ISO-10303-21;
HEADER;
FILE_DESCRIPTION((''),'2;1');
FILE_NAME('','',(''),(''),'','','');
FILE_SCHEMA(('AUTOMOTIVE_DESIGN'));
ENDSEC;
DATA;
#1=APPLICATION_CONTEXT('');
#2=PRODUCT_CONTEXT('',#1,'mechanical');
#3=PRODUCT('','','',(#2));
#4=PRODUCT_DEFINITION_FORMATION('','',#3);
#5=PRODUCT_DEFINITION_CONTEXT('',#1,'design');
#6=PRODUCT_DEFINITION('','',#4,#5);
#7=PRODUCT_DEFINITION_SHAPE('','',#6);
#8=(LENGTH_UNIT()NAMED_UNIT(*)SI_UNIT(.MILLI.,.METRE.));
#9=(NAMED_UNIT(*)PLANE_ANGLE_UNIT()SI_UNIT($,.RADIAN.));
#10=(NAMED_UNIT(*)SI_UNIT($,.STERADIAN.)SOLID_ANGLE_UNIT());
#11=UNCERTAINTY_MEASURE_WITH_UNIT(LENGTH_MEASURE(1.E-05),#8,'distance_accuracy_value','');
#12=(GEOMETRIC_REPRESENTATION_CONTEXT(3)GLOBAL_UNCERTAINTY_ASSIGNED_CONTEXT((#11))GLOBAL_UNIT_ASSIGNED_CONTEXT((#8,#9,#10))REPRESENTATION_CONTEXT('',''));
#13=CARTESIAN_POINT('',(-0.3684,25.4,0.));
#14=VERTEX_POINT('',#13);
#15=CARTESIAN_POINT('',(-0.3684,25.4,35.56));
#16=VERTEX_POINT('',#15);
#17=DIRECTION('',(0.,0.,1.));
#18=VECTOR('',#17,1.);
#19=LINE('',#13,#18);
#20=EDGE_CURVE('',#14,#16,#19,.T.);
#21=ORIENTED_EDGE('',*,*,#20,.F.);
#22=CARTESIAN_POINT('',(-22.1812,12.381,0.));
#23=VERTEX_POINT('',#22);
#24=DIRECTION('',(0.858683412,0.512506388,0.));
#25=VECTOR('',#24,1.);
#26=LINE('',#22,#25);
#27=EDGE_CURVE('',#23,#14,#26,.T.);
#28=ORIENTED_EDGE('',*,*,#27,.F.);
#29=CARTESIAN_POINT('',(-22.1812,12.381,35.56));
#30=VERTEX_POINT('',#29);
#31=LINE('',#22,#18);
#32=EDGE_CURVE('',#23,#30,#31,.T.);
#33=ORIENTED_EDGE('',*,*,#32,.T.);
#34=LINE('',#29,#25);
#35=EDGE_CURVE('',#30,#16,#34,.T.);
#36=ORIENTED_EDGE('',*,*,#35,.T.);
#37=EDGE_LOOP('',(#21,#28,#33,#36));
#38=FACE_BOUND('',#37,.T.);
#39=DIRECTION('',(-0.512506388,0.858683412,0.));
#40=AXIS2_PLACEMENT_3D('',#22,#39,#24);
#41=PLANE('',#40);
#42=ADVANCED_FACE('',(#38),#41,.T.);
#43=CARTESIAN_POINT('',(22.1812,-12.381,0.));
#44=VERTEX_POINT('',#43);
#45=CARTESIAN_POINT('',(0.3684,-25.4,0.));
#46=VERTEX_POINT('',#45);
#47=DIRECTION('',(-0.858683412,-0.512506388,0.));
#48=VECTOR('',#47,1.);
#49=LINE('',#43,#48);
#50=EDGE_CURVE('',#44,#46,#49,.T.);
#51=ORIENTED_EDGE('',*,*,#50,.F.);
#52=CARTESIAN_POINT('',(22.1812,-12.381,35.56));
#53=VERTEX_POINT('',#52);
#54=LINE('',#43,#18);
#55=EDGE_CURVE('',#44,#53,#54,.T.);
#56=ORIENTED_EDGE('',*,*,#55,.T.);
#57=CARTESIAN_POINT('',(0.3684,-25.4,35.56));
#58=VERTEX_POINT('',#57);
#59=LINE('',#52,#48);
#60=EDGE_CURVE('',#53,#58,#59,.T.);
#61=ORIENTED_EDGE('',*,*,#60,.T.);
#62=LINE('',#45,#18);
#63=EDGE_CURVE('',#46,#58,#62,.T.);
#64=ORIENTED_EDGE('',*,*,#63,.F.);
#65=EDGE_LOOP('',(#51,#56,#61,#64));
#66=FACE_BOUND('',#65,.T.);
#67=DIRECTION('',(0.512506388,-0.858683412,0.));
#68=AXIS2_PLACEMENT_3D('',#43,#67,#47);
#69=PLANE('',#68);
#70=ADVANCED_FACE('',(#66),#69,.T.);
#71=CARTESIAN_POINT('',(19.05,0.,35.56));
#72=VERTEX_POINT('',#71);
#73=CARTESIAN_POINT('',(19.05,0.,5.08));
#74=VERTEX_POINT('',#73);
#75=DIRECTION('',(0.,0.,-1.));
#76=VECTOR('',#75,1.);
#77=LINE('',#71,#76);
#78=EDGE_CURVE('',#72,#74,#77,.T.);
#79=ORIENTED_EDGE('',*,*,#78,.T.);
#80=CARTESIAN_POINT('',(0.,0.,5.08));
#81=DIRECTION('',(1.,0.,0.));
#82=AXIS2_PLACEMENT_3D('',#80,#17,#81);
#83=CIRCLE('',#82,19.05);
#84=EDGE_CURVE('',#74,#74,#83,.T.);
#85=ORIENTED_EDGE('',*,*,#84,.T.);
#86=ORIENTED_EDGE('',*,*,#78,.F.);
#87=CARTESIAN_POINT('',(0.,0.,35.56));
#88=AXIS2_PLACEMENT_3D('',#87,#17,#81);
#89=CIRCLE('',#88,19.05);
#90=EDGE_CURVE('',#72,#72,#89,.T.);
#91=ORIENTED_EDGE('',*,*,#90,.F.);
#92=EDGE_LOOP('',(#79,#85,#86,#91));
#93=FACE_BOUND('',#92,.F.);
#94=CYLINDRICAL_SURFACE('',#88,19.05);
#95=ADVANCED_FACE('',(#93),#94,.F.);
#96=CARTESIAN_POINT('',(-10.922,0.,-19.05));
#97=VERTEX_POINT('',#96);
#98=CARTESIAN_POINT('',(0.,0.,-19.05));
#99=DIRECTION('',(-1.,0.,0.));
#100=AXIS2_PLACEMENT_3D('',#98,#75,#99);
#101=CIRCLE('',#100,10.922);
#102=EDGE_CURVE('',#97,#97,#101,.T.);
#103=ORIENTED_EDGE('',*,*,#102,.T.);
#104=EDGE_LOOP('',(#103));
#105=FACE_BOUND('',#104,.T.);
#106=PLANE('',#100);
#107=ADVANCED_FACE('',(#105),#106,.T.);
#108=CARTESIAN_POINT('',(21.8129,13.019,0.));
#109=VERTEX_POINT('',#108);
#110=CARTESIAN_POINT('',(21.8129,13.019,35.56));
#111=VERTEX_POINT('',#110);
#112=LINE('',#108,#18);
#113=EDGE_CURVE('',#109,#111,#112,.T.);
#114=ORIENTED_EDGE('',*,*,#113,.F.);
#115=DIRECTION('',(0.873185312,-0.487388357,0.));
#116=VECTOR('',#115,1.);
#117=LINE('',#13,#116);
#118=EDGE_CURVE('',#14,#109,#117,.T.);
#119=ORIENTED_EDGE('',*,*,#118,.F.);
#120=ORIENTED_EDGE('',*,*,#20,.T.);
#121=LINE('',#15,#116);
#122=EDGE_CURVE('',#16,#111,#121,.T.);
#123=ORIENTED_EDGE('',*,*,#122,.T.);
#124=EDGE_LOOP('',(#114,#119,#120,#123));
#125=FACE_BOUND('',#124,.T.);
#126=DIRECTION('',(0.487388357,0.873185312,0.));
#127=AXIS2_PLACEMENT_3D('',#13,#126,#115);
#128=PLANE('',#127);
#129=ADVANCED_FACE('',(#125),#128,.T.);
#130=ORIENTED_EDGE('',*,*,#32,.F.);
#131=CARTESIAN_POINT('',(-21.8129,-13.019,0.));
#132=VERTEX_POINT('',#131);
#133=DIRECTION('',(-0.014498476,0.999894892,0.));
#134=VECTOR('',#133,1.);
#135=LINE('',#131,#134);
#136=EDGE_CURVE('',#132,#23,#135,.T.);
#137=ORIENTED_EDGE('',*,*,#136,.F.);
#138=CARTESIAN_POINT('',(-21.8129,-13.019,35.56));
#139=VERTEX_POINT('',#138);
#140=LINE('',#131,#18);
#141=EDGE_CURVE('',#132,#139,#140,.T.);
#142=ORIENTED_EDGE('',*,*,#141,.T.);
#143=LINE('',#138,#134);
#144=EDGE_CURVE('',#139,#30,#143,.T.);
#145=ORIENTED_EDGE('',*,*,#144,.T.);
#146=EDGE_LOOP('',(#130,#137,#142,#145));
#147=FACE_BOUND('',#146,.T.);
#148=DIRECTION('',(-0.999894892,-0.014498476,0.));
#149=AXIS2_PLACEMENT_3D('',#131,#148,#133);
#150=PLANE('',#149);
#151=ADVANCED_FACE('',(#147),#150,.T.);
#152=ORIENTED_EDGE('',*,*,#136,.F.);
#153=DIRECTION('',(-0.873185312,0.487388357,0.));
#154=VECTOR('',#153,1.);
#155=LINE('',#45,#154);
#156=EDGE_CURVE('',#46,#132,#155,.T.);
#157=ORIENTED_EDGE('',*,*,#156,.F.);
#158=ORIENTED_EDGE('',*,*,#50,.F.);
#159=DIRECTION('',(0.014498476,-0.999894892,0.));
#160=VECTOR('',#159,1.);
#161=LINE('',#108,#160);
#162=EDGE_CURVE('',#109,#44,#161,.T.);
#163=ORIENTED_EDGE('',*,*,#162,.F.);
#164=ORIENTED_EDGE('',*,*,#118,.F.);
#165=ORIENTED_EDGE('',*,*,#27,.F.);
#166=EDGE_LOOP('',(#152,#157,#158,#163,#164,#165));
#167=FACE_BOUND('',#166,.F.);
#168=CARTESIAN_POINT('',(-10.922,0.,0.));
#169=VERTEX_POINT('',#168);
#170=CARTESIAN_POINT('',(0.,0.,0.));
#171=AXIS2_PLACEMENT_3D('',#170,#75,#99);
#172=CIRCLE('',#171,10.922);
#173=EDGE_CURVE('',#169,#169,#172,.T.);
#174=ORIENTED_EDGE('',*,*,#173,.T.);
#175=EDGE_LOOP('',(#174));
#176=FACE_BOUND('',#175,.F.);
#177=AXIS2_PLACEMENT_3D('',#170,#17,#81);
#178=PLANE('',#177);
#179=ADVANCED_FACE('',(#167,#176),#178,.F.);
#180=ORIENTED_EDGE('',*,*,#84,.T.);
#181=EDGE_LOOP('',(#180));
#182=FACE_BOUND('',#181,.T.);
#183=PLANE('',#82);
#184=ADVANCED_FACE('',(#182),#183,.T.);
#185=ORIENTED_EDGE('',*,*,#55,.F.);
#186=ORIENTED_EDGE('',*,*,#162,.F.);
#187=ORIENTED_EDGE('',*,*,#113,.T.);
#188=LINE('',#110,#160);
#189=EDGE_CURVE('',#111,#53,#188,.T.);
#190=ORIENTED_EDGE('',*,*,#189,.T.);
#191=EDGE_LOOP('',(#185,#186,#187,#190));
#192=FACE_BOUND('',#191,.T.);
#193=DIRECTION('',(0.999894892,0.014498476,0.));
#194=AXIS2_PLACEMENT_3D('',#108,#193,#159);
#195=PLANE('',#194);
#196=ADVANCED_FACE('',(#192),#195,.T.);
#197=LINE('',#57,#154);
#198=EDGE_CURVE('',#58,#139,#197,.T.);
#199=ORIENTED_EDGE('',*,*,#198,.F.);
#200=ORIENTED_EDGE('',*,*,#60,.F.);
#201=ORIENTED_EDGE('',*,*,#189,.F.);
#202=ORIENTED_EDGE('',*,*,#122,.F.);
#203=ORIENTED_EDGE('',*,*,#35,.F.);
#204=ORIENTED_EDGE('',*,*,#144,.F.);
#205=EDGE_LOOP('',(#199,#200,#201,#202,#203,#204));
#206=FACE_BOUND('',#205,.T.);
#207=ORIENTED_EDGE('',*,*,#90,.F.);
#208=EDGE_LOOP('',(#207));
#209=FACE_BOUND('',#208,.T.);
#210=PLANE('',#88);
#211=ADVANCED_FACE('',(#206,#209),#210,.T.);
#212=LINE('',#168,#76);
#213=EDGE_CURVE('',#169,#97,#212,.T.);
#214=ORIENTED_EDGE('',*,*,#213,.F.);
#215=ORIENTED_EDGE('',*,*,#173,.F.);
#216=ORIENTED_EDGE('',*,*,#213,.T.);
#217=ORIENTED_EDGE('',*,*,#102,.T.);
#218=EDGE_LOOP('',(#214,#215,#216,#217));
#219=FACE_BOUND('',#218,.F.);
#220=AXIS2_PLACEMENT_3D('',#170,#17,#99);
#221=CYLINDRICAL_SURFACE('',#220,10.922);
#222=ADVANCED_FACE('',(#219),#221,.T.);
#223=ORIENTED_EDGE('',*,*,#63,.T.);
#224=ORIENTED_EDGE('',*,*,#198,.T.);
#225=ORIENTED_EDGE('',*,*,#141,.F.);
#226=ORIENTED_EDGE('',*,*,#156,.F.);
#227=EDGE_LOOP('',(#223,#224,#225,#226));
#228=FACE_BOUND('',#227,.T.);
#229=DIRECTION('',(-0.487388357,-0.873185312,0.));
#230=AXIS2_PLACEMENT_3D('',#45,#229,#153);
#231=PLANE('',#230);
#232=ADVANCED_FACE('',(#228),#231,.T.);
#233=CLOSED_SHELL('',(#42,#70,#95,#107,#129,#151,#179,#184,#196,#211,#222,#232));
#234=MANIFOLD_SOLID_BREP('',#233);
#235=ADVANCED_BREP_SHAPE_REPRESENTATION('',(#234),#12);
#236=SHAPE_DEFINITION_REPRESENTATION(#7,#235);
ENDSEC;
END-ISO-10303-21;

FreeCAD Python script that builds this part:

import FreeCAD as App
import Part
import Sketcher
Q = App.Units.Quantity

doc = App.newDocument("Part")
body = doc.addObject("PartDesign::Body", "Body")

# Sketch on XY plane
sketch1 = body.newObject("Sketcher::SketchObject", "Sketch")
sketch1.AttachmentSupport = (doc.getObject("XY_Plane"), [""])
sketch1.MapMode = "FlatFace"
sketch1.addGeometry([
    Part.LineSegment(App.Vector(22, -12, 0), App.Vector(22, 13, 0)),  # 0
    Part.LineSegment(App.Vector(22, 13, 0), App.Vector(0, 25, 0)),  # 1
    Part.LineSegment(App.Vector(0, 25, 0), App.Vector(-22, 12, 0)),  # 2
    Part.LineSegment(App.Vector(-22, 12, 0), App.Vector(-22, -13, 0)),  # 3
    Part.LineSegment(App.Vector(-22, -13, 0), App.Vector(0, -25, 0)),  # 4
    Part.LineSegment(App.Vector(0, -25, 0), App.Vector(22, -12, 0)),  # 5
], False)
sketch1.addConstraint([
    Sketcher.Constraint("Coincident", 0, 2, 1, 1),
    Sketcher.Constraint("Coincident", 1, 2, 2, 1),
    Sketcher.Constraint("Coincident", 2, 2, 3, 1),
    Sketcher.Constraint("Coincident", 3, 2, 4, 1),
    Sketcher.Constraint("Coincident", 4, 2, 5, 1),
    Sketcher.Constraint("Coincident", 5, 2, 0, 1),
    Sketcher.Constraint("Symmetric", 0, 2, 3, 2, -1, 1),
    Sketcher.Constraint("Symmetric", 1, 2, 4, 2, -1, 1),
    Sketcher.Constraint("Symmetric", 2, 2, 5, 2, -1, 1),
    Sketcher.Constraint("Equal", 0, 1),
    Sketcher.Constraint("Equal", 1, 2),
    Sketcher.Constraint("DistanceY", -1, 1, 1, 2, Q("1 in")),
    Sketcher.Constraint("DistanceY", 3, 2, 2, 2, Q("1 in")),
    Sketcher.Constraint("Angle", 0, Q("90.8307 deg")),
    Sketcher.Constraint("Angle", 1, Q("150.831 deg")),
])
pad1 = body.newObject("PartDesign::Pad", "Pad")
pad1.Profile = sketch1
pad1.Length = Q("1.4 in")

# Sketch on XY plane
sketch2 = body.newObject("Sketcher::SketchObject", "Sketch001")
sketch2.AttachmentSupport = (doc.getObject("XY_Plane"), [""])
sketch2.MapMode = "FlatFace"
sketch2.AttachmentOffset = App.Placement(App.Vector(0, 0, 1.4 * 25.4), App.Rotation())
sketch2.addGeometry(Part.Circle(App.Vector(0, 0, 0), App.Vector(0, 0, 1), 19), False)
sketch2.addConstraint([
    Sketcher.Constraint("Coincident", 0, 3, -1, 1),
    Sketcher.Constraint("Diameter", 0, Q("1.5 in")),
])
pocket1 = body.newObject("PartDesign::Pocket", "Pocket")
pocket1.Profile = sketch2
pocket1.Length = Q("1.2 in")

# Sketch on XY plane
sketch3 = body.newObject("Sketcher::SketchObject", "Sketch002")
sketch3.AttachmentSupport = (doc.getObject("XY_Plane"), [""])
sketch3.MapMode = "FlatFace"
sketch3.addGeometry(Part.Circle(App.Vector(0, 0, 0), App.Vector(0, 0, 1), 11), False)
sketch3.addConstraint([
    Sketcher.Constraint("Coincident", 0, 3, -1, 1),
    Sketcher.Constraint("Diameter", 0, Q("0.86 in")),
])
pad2 = body.newObject("PartDesign::Pad", "Pad001")
pad2.Profile = sketch3
pad2.Length = Q("0.75 in")
pad2.Reversed = True

doc.recompute()
